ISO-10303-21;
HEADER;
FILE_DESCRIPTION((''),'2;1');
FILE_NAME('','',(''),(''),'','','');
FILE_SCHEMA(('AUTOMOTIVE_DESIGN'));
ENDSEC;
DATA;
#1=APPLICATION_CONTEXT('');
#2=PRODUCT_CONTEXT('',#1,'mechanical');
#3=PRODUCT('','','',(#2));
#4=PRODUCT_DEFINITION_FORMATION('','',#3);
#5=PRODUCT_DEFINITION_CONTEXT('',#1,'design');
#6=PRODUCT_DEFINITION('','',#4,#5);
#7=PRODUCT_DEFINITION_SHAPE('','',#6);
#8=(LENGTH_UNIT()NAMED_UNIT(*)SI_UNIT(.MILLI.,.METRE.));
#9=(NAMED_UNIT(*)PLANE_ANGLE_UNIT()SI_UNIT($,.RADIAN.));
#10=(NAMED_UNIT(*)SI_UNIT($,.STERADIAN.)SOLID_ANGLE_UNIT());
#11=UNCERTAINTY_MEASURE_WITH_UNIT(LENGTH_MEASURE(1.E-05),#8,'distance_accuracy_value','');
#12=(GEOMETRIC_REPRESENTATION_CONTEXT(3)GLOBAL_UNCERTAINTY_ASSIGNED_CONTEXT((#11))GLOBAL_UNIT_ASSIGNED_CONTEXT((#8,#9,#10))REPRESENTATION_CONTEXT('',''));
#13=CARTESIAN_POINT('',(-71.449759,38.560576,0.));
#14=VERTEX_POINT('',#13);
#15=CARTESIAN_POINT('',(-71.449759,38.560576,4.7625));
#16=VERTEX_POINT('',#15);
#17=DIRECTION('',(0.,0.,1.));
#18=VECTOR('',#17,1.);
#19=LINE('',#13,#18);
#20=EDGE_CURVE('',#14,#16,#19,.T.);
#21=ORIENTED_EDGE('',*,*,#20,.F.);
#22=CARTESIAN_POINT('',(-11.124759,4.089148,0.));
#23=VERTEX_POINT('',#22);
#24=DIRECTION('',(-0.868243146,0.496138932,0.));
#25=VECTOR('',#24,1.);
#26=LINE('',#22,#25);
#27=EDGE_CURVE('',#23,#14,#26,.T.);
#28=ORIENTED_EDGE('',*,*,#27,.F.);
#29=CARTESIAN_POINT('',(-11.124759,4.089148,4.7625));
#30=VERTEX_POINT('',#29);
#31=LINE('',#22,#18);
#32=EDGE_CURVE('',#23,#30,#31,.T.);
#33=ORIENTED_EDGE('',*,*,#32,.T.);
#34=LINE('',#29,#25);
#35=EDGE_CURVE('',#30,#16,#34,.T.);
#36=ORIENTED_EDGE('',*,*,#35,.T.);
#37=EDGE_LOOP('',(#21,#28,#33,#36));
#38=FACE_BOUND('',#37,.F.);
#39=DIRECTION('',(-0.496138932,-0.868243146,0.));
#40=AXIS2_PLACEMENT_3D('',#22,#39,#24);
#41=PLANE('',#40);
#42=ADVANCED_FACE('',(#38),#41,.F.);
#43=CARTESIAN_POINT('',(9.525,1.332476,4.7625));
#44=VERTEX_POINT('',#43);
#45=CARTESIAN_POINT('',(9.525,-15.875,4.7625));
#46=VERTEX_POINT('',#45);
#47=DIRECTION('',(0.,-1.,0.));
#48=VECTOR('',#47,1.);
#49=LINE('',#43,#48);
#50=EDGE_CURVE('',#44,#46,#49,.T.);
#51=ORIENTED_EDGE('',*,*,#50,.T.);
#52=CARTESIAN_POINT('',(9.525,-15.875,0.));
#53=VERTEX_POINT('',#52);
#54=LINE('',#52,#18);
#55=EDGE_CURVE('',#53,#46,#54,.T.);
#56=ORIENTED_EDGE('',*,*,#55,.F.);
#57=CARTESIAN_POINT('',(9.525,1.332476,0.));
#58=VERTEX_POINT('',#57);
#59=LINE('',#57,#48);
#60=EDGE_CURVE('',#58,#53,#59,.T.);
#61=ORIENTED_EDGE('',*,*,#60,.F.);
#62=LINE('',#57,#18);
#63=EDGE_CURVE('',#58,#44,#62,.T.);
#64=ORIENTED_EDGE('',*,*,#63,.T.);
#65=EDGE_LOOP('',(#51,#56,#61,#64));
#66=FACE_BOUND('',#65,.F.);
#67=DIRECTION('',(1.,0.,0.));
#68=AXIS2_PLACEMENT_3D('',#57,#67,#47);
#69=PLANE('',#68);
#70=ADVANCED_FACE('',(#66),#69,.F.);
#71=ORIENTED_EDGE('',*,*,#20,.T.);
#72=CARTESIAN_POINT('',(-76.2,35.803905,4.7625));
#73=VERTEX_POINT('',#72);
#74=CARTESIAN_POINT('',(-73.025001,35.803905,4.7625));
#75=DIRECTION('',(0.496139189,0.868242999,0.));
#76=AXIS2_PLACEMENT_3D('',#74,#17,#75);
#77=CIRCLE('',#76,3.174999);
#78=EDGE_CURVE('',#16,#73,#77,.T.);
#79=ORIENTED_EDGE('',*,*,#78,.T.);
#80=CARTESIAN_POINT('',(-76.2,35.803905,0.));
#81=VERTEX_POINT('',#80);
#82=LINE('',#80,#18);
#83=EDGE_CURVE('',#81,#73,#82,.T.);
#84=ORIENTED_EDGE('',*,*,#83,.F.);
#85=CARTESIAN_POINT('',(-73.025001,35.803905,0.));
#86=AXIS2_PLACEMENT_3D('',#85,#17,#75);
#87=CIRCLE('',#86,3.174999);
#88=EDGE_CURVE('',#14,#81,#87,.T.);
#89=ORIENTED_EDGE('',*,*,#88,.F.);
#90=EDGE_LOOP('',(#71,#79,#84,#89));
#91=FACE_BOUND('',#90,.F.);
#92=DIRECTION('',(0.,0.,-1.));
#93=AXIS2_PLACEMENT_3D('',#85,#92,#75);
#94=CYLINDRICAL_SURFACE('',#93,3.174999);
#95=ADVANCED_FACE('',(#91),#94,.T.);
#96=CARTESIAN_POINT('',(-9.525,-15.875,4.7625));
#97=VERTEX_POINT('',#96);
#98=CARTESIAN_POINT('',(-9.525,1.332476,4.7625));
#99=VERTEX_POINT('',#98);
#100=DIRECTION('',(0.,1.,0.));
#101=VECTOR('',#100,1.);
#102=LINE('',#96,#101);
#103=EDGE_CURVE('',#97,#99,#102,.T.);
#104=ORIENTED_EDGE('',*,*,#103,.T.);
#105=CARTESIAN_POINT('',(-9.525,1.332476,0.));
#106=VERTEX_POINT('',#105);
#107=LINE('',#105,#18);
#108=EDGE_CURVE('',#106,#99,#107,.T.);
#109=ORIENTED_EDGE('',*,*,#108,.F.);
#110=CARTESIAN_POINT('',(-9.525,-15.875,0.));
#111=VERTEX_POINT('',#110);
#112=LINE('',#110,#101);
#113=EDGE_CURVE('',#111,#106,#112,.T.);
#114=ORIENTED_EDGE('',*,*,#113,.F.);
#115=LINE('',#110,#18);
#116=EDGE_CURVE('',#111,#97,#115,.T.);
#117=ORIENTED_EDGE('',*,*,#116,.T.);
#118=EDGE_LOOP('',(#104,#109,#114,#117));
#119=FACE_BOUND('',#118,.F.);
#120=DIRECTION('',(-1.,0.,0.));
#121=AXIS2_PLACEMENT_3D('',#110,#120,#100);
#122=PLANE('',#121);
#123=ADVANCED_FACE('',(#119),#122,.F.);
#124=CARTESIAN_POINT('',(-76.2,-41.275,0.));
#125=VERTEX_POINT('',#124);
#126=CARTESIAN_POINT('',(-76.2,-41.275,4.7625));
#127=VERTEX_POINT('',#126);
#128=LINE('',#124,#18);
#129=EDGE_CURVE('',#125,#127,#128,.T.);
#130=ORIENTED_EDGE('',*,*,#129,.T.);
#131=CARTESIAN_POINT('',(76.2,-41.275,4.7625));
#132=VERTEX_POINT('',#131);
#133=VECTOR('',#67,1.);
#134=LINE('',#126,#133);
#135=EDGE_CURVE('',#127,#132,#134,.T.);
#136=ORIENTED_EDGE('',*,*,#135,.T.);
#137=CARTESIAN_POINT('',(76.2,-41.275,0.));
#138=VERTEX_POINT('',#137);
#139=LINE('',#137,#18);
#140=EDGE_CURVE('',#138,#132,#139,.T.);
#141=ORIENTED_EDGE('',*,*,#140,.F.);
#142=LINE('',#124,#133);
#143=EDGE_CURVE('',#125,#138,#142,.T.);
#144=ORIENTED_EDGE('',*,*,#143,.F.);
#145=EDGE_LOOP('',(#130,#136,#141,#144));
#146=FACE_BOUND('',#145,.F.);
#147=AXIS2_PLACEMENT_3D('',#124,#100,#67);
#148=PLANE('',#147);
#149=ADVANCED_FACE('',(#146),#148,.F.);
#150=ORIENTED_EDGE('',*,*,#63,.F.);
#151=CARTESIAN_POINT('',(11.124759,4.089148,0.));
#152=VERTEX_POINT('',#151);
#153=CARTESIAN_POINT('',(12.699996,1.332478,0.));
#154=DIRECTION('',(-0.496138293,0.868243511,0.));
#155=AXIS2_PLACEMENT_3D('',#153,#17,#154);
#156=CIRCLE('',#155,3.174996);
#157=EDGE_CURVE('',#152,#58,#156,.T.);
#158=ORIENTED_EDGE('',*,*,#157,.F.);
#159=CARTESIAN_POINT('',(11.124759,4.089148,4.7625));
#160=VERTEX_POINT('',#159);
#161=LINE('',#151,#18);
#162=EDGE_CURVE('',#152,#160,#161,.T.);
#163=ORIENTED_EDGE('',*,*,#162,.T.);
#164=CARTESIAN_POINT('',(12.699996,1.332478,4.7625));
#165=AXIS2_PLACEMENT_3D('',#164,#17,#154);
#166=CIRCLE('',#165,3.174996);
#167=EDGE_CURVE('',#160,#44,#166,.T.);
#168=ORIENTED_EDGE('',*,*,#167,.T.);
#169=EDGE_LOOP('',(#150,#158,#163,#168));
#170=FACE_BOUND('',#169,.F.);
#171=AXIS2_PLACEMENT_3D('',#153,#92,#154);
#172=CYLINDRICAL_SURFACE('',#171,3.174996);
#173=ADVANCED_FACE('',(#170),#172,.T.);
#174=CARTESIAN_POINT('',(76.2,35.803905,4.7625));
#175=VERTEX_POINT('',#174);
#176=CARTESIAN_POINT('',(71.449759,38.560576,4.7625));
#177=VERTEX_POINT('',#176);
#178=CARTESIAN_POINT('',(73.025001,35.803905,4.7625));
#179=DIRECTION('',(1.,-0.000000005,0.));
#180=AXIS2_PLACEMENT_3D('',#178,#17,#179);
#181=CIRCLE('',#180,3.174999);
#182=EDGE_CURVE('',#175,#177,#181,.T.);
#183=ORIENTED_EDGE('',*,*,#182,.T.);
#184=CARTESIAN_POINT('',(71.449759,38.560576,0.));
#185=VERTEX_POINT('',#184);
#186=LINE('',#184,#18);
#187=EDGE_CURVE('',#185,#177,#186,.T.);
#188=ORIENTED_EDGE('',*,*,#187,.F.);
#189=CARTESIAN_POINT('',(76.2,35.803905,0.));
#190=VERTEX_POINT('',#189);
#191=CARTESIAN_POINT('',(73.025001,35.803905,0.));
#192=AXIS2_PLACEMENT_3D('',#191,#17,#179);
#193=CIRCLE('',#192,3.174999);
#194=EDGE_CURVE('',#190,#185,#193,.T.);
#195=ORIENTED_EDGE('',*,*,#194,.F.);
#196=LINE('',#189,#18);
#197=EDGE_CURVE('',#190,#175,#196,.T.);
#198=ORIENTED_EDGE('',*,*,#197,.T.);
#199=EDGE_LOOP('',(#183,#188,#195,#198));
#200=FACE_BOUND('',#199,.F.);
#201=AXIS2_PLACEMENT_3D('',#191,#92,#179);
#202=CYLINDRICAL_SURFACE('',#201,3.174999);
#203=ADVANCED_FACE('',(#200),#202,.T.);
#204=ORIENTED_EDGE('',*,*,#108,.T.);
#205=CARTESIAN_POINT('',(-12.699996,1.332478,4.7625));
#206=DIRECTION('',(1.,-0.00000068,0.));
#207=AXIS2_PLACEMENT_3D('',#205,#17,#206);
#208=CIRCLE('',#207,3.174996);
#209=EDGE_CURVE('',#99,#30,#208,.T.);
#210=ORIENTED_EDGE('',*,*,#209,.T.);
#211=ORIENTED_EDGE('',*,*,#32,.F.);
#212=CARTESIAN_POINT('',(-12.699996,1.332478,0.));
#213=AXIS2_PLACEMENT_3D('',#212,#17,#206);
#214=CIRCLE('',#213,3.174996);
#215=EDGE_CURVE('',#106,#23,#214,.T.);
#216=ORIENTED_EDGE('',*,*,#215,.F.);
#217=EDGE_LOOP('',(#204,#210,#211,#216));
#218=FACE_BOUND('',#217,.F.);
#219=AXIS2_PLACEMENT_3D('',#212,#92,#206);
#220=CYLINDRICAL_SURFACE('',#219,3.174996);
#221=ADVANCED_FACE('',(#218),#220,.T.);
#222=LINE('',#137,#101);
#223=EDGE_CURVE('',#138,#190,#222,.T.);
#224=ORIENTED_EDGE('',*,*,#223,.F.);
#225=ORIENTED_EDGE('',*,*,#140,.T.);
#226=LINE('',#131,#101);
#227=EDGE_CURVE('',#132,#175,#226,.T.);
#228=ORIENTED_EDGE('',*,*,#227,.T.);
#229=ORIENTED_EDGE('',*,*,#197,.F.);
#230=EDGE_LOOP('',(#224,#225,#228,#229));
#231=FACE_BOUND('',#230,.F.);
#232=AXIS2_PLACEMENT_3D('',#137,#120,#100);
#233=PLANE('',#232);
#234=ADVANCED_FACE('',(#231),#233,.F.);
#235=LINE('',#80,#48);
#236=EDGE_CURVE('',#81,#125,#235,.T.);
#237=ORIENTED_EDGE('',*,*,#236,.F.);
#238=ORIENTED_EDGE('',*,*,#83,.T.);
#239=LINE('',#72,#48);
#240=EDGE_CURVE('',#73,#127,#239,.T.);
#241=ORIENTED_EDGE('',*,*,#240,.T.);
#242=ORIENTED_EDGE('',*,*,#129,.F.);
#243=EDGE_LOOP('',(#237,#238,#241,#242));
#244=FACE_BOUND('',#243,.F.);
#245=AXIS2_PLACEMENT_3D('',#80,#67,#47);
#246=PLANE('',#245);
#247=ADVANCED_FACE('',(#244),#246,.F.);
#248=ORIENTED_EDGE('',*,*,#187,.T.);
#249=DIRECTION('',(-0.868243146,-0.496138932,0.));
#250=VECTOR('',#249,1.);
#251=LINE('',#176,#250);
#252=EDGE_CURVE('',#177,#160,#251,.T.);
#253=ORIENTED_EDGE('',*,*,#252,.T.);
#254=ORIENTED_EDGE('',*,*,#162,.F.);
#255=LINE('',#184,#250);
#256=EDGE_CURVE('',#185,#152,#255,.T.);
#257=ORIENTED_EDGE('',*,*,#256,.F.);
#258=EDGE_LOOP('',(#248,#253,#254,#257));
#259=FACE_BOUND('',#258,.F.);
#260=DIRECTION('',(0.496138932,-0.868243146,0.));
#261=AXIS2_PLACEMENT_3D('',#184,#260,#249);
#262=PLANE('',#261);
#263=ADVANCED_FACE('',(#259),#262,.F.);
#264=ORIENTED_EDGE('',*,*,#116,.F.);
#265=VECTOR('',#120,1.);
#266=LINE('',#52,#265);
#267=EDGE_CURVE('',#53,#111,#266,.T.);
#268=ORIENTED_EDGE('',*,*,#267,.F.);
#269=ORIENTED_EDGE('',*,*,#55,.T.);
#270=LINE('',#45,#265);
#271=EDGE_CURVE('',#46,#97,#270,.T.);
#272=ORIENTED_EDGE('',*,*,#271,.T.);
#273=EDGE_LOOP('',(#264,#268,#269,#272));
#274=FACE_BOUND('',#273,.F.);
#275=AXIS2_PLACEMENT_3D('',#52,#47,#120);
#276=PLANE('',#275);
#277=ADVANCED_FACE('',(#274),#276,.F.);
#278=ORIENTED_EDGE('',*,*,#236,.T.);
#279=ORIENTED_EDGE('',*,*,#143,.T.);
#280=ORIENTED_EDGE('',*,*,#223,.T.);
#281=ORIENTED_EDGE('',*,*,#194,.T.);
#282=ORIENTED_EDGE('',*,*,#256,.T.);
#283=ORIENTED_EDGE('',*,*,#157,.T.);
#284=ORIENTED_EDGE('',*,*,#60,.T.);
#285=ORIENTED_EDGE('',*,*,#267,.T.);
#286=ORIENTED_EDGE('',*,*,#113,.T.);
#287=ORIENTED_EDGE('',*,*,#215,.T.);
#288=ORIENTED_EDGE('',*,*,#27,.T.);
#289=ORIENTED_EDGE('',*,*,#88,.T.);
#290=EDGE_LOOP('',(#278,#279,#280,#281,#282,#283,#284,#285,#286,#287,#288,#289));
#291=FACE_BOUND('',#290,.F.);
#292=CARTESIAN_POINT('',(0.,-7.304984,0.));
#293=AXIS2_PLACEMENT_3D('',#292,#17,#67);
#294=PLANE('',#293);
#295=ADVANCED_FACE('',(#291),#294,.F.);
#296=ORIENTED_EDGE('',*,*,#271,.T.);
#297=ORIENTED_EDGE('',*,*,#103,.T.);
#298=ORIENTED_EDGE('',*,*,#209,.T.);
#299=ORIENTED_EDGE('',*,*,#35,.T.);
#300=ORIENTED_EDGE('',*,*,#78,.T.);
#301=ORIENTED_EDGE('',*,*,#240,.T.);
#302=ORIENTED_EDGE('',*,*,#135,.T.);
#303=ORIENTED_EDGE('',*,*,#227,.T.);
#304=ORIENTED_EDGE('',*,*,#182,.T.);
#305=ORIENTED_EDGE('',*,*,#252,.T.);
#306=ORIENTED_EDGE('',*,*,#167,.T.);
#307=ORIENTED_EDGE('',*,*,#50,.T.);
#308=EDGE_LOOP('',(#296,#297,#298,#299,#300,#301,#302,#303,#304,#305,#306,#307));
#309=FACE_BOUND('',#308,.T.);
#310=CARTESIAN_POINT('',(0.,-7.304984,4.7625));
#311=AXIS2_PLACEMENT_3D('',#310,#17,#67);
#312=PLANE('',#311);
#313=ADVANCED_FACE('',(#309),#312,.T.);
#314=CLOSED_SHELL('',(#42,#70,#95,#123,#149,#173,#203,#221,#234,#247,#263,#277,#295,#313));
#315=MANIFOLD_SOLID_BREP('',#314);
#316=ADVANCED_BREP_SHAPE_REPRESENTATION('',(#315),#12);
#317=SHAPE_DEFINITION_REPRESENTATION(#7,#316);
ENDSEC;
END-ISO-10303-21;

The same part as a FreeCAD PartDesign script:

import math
import FreeCAD as App
import Part
import Sketcher

V = App.Vector
Q = App.Units.Quantity

doc = App.newDocument("Part")
body = doc.addObject("PartDesign::Body", "Body")

sketch1 = body.newObject("Sketcher::SketchObject", "Sketch")
sketch1.AttachmentSupport = (doc.getObject("XY_Plane"), [""])
sketch1.MapMode = "FlatFace"
sketch1.addGeometry(Part.LineSegment(V(-76.2, -41.3, 0), V(76.2, -41.3, 0)), False)
sketch1.addGeometry(Part.LineSegment(V(76.2, -41.3, 0), V(76.2, 35.8, 0)), False)
sketch1.addGeometry(Part.ArcOfCircle(Part.Circle(V(73, 35.8, 0), V(0, 0, 1), 3.2), math.radians(0), math.radians(120)), False)
sketch1.addGeometry(Part.LineSegment(V(71.4, 38.6, 0), V(11.1, 4.1, 0)), False)
sketch1.addGeometry(Part.ArcOfCircle(Part.Circle(V(12.7, 1.3, 0), V(0, 0, 1), 3.2), math.radians(120), math.radians(180)), False)
sketch1.addGeometry(Part.LineSegment(V(9.5, 1.3, 0), V(9.5, -15.9, 0)), False)
sketch1.addGeometry(Part.LineSegment(V(9.5, -15.9, 0), V(-9.5, -15.9, 0)), False)
sketch1.addGeometry(Part.LineSegment(V(-9.5, -15.9, 0), V(-9.5, 1.3, 0)), False)
sketch1.addGeometry(Part.ArcOfCircle(Part.Circle(V(-12.7, 1.3, 0), V(0, 0, 1), 3.2), math.radians(0), math.radians(60)), False)
sketch1.addGeometry(Part.LineSegment(V(-11.1, 4.1, 0), V(-71.4, 38.6, 0)), False)
sketch1.addGeometry(Part.ArcOfCircle(Part.Circle(V(-73, 35.8, 0), V(0, 0, 1), 3.2), math.radians(60), math.radians(180)), False)
sketch1.addGeometry(Part.LineSegment(V(-76.2, 35.8, 0), V(-76.2, -41.3, 0)), False)
sketch1.addConstraint(Sketcher.Constraint("Coincident", 0, 2, 1, 1))
sketch1.addConstraint(Sketcher.Constraint("Tangent", 1, 2, 2, 1))
sketch1.addConstraint(Sketcher.Constraint("Tangent", 2, 2, 3, 1))
sketch1.addConstraint(Sketcher.Constraint("Tangent", 3, 2, 4, 1))
sketch1.addConstraint(Sketcher.Constraint("Tangent", 4, 2, 5, 1))
sketch1.addConstraint(Sketcher.Constraint("Coincident", 5, 2, 6, 1))
sketch1.addConstraint(Sketcher.Constraint("Coincident", 6, 2, 7, 1))
sketch1.addConstraint(Sketcher.Constraint("Tangent", 7, 2, 8, 1))
sketch1.addConstraint(Sketcher.Constraint("Tangent", 8, 2, 9, 1))
sketch1.addConstraint(Sketcher.Constraint("Tangent", 9, 2, 10, 1))
sketch1.addConstraint(Sketcher.Constraint("Tangent", 10, 2, 11, 1))
sketch1.addConstraint(Sketcher.Constraint("Coincident", 11, 2, 0, 1))
sketch1.addConstraint(Sketcher.Constraint("Horizontal", 0))
sketch1.addConstraint(Sketcher.Constraint("Vertical", 1))
sketch1.addConstraint(Sketcher.Constraint("Vertical", 5))
sketch1.addConstraint(Sketcher.Constraint("Horizontal", 6))
sketch1.addConstraint(Sketcher.Constraint("Vertical", 7))
sketch1.addConstraint(Sketcher.Constraint("Vertical", 11))
sketch1.addConstraint(Sketcher.Constraint("Equal", 4, 8))
sketch1.addConstraint(Sketcher.Constraint("Equal", 2, 10))
sketch1.addConstraint(Sketcher.Constraint("Symmetric", 4, 3, 8, 3, -2))
sketch1.addConstraint(Sketcher.Constraint("Symmetric", 2, 3, 10, 3, -2))
sketch1.addConstraint(Sketcher.Constraint("DistanceX", 0, 1, 0, 2, Q("6 in")))
sketch1.addConstraint(Sketcher.Constraint("Radius", 2, Q("0.125 in")))
sketch1.addConstraint(Sketcher.Constraint("Radius", 4, Q("0.1249999 in")))
sketch1.addConstraint(Sketcher.Constraint("DistanceY", 0, 2, 5, 2, Q("1 in")))
sketch1.addConstraint(Sketcher.Constraint("DistanceX", 6, 2, 6, 1, Q("0.75 in")))
sketch1.addConstraint(Sketcher.Constraint("DistanceY", 0, 2, -1, 1, Q("1.625 in")))
sketch1.addConstraint(Sketcher.Constraint("DistanceY", 4, 2, 2, 2, 37.2281))
sketch1.addConstraint(Sketcher.Constraint("DistanceY", 1, 1, 1, 2, 77.078905))
pad1 = body.newObject("PartDesign::Pad", "Pad")
pad1.Profile = sketch1
pad1.Length = Q("0.1875 in")

doc.recompute()
